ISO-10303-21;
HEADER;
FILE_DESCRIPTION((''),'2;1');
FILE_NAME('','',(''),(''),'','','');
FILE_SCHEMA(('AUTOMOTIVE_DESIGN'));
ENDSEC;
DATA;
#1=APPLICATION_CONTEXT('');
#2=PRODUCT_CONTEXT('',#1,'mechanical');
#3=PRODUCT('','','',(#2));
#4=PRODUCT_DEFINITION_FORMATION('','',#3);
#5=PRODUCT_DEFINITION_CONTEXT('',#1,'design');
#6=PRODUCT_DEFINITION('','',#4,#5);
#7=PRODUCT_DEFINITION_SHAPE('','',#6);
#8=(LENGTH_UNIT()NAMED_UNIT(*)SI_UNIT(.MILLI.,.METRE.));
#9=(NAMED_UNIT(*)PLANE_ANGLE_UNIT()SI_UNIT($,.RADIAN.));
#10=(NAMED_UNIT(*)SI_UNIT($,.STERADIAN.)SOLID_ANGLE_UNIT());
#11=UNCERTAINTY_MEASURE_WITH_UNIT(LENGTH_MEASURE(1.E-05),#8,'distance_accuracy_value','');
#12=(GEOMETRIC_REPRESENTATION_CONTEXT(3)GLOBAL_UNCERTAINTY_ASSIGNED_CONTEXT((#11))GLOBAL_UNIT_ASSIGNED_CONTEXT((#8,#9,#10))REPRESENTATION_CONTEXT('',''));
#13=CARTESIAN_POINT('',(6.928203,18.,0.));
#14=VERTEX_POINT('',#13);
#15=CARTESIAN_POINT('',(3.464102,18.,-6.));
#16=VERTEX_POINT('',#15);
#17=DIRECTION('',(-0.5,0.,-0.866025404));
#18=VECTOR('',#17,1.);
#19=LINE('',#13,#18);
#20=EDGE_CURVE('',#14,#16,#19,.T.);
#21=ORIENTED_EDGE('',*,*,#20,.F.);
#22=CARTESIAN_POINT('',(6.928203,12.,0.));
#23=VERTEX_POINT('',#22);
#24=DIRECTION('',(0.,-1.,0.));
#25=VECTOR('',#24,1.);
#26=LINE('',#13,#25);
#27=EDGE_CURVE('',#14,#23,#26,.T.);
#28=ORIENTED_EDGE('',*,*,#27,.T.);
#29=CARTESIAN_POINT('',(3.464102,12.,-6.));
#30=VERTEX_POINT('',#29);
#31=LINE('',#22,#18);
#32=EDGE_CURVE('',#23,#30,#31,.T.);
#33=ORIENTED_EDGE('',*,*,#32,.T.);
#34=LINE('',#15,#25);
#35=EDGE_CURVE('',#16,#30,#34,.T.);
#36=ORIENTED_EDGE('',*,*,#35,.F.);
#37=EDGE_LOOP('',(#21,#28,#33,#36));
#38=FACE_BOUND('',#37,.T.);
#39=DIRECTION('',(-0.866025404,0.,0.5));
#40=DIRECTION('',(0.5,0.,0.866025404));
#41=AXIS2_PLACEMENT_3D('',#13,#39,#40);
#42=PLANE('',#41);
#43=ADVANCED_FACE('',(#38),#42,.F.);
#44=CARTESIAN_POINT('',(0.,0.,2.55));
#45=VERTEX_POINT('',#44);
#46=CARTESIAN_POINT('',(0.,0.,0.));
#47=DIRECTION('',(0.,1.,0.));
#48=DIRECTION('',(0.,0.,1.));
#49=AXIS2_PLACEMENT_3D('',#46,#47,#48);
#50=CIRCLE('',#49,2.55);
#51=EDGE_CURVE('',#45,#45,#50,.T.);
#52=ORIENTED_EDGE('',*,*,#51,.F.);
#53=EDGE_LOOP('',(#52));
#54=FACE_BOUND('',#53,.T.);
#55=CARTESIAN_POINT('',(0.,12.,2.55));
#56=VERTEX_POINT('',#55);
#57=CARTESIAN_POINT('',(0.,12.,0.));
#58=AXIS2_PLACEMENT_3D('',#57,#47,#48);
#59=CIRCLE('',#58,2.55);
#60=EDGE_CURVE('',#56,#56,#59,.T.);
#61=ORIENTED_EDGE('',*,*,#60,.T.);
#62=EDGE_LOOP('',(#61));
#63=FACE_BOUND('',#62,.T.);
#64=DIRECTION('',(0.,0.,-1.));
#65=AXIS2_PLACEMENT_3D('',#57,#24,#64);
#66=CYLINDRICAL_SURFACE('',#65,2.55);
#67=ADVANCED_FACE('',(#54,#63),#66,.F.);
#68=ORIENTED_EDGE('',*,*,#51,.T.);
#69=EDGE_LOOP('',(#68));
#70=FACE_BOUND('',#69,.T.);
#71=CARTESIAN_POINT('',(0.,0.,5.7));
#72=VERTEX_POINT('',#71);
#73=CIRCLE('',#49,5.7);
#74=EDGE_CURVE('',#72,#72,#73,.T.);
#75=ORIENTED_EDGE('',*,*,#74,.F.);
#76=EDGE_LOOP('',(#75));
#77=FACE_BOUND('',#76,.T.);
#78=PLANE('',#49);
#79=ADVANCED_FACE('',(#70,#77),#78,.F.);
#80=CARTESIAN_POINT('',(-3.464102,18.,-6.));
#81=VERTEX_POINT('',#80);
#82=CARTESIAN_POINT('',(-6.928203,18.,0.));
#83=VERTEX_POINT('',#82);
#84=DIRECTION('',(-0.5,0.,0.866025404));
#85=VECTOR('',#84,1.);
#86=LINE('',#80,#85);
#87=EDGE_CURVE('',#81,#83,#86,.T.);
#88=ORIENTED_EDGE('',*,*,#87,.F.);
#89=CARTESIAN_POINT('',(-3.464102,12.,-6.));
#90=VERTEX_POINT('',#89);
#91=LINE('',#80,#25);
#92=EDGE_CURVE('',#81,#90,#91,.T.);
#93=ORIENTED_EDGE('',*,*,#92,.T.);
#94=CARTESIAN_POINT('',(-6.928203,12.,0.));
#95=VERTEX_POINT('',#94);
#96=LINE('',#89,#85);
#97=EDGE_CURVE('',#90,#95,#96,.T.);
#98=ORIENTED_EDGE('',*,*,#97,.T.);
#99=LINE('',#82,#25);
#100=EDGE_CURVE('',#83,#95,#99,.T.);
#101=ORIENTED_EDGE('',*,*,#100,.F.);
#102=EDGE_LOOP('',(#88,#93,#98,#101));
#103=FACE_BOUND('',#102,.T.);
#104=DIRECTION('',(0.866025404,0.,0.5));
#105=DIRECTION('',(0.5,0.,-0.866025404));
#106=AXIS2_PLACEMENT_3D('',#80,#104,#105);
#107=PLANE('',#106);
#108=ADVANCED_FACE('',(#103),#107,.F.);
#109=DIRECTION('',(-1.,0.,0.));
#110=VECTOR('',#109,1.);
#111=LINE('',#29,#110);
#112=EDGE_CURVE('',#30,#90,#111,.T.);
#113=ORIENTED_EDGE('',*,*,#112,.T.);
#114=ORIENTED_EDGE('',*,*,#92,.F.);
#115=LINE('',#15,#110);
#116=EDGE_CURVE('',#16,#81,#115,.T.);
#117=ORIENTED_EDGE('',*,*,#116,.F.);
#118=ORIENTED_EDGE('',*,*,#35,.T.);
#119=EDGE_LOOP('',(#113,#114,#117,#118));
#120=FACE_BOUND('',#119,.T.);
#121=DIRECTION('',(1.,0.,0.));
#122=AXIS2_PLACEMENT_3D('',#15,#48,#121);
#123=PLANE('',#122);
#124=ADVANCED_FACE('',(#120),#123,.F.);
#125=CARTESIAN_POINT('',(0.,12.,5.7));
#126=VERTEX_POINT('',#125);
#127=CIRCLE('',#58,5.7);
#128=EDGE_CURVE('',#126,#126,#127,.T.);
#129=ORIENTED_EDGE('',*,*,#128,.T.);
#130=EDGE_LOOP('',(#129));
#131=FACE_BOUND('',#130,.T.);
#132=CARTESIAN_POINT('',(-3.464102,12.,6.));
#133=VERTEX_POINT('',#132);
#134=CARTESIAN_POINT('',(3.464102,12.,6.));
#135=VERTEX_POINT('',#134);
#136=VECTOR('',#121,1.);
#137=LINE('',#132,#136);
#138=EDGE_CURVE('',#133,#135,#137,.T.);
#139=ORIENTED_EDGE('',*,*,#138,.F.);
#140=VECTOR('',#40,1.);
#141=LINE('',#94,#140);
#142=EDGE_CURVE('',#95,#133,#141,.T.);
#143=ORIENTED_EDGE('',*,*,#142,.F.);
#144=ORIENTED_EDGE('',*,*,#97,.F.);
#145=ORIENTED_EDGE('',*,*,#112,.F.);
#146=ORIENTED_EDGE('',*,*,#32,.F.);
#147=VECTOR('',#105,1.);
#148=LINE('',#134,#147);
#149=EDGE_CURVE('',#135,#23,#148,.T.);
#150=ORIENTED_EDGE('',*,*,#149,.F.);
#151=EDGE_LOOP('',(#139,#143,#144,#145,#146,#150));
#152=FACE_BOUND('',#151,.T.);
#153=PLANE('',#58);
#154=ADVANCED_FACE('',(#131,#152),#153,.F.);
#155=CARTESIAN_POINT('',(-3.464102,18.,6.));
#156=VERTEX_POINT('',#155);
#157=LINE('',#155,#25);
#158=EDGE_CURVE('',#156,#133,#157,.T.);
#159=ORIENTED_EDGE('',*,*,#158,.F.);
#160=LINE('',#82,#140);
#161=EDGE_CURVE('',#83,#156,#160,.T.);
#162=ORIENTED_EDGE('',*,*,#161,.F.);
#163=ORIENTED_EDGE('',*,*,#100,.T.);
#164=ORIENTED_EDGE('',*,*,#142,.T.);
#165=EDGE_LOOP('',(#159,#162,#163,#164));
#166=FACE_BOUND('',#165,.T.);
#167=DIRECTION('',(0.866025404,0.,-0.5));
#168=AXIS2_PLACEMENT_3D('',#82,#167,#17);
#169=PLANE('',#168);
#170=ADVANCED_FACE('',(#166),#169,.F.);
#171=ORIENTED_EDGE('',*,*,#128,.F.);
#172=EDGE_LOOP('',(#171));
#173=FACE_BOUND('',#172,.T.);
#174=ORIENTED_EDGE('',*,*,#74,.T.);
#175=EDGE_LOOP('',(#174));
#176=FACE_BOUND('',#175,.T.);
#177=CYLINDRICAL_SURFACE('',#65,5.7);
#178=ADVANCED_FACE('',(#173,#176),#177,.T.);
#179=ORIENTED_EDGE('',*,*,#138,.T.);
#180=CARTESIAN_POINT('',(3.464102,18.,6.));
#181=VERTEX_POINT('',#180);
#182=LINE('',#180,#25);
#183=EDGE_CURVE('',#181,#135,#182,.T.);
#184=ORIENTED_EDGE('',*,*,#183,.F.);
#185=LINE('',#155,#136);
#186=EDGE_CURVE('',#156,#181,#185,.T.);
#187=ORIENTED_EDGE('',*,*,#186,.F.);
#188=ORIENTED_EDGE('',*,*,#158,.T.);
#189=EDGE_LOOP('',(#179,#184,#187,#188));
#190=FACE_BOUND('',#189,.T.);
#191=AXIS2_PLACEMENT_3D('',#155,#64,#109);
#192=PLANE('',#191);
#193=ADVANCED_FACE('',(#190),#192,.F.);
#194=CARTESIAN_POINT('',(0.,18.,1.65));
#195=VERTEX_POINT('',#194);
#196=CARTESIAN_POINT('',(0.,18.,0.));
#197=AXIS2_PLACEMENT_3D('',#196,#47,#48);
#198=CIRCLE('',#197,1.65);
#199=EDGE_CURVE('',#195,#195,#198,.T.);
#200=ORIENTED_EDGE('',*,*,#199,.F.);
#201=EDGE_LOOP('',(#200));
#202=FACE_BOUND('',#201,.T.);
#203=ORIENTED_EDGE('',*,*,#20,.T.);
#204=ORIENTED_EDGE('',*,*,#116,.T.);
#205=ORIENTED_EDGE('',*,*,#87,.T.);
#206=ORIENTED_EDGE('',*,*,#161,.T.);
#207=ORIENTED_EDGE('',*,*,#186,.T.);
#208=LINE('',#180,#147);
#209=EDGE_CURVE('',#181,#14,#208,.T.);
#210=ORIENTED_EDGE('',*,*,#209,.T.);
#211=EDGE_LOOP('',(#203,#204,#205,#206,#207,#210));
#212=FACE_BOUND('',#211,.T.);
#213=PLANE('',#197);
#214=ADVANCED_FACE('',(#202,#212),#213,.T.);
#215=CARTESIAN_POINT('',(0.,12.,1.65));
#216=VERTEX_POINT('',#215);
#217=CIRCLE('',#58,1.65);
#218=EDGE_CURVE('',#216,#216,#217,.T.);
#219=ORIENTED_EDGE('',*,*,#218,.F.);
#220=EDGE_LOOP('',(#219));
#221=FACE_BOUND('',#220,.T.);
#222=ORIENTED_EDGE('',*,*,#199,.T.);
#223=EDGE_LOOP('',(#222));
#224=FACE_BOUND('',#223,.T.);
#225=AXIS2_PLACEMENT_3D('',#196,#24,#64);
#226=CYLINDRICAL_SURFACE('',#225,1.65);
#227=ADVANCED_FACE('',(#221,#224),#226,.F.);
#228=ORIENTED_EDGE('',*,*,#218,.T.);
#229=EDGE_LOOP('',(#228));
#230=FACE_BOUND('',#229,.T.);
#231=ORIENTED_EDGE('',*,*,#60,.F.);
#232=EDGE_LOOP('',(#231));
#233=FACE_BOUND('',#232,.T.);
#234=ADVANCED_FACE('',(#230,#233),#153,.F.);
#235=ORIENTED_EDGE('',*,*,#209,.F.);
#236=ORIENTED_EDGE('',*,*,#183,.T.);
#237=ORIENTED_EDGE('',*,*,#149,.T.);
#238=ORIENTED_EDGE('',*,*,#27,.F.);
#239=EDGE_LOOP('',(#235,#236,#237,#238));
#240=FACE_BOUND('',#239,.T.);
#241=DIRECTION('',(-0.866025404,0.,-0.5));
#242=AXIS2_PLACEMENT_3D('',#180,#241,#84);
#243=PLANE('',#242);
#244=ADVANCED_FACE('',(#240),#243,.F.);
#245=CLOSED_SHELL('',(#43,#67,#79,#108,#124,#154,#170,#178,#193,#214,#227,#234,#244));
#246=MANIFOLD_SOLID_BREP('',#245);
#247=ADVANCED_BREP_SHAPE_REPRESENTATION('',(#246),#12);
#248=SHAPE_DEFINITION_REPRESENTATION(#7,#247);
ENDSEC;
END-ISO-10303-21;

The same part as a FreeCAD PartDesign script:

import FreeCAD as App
import Part
import Sketcher
Q = App.Units.Quantity

doc = App.newDocument("Part")
body = doc.addObject("PartDesign::Body", "Body")

# Sketch on XZ plane
sketch1 = body.newObject("Sketcher::SketchObject", "Sketch")
sketch1.AttachmentSupport = (doc.getObject("XZ_Plane"), [""])
sketch1.MapMode = "FlatFace"
sketch1.addGeometry(Part.Circle(App.Vector(0, 0, 0), App.Vector(0, 0, 1), 5.7), False)
sketch1.addGeometry(Part.Circle(App.Vector(0, 0, 0), App.Vector(0, 0, 1), 2.5), False)
sketch1.addConstraint(Sketcher.Constraint("Coincident", 0, 3, -1, 1))
sketch1.addConstraint(Sketcher.Constraint("Coincident", 1, 3, -1, 1))
sketch1.addConstraint(Sketcher.Constraint("Diameter", 0, 11.4))
sketch1.addConstraint(Sketcher.Constraint("Diameter", 1, 5.1))
pad1 = body.newObject("PartDesign::Pad", "Pad")
pad1.Profile = sketch1
pad1.Length = 12
pad1.Reversed = True

# Sketch on XZ plane
sketch2 = body.newObject("Sketcher::SketchObject", "Sketch001")
sketch2.AttachmentSupport = (doc.getObject("XZ_Plane"), [""])
sketch2.MapMode = "FlatFace"
sketch2.AttachmentOffset = App.Placement(App.Vector(0, 0, -12), App.Rotation())
sketch2.addGeometry(Part.LineSegment(App.Vector(6.9, 0, 0), App.Vector(3.5, -6, 0)), False)
sketch2.addGeometry(Part.LineSegment(App.Vector(3.5, -6, 0), App.Vector(-3.5, -6, 0)), False)
sketch2.addGeometry(Part.LineSegment(App.Vector(-3.5, -6, 0), App.Vector(-6.9, 0, 0)), False)
sketch2.addGeometry(Part.LineSegment(App.Vector(-6.9, 0, 0), App.Vector(-3.5, 6, 0)), False)
sketch2.addGeometry(Part.LineSegment(App.Vector(-3.5, 6, 0), App.Vector(3.5, 6, 0)), False)
sketch2.addGeometry(Part.LineSegment(App.Vector(3.5, 6, 0), App.Vector(6.9, 0, 0)), False)
sketch2.addGeometry(Part.Circle(App.Vector(0, 0, 0), App.Vector(0, 0, 1), 1.6), False)
sketch2.addConstraint(Sketcher.Constraint("Coincident", 0, 2, 1, 1))
sketch2.addConstraint(Sketcher.Constraint("Coincident", 1, 2, 2, 1))
sketch2.addConstraint(Sketcher.Constraint("Coincident", 2, 2, 3, 1))
sketch2.addConstraint(Sketcher.Constraint("Coincident", 3, 2, 4, 1))
sketch2.addConstraint(Sketcher.Constraint("Coincident", 4, 2, 5, 1))
sketch2.addConstraint(Sketcher.Constraint("Coincident", 5, 2, 0, 1))
sketch2.addConstraint(Sketcher.Constraint("Horizontal", 1))
sketch2.addConstraint(Sketcher.Constraint("Horizontal", 4))
sketch2.addConstraint(Sketcher.Constraint("Coincident", 6, 3, -1, 1))
sketch2.addConstraint(Sketcher.Constraint("Symmetric", 0, 2, 3, 2, -1, 1))
sketch2.addConstraint(Sketcher.Constraint("Symmetric", 2, 2, 5, 2, -1, 1))
sketch2.addConstraint(Sketcher.Constraint("PointOnObject", 2, 2, -1))
sketch2.addConstraint(Sketcher.Constraint("Parallel", 2, 5))
sketch2.addConstraint(Sketcher.Constraint("Vertical", 1, 2, 3, 2))
sketch2.addConstraint(Sketcher.Constraint("Diameter", 6, 3.3))
sketch2.addConstraint(Sketcher.Constraint("Angle", 0, Q("-120 deg")))
sketch2.addConstraint(Sketcher.Constraint("DistanceY", 0, 2, -1, 1, 6.0))
sketch2.addConstraint(Sketcher.Constraint("DistanceX", -1, 1, 0, 2, 3.464102))
pad2 = body.newObject("PartDesign::Pad", "Pad001")
pad2.Profile = sketch2
pad2.Length = 6
pad2.Reversed = True

doc.recompute()
